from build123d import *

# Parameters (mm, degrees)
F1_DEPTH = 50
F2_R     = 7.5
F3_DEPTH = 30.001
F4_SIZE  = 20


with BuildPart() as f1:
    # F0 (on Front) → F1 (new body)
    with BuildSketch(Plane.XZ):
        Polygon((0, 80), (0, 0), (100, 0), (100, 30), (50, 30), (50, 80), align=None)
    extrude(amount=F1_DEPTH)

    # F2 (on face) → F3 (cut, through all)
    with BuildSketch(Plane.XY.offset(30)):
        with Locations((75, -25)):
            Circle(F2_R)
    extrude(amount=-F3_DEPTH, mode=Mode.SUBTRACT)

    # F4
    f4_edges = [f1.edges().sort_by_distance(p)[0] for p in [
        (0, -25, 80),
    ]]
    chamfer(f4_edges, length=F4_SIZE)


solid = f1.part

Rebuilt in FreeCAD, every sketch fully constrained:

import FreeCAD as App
import Part
import Sketcher
from FreeCAD import Vector
Q = App.Units.Quantity


def edges_at(feature, points):
    """Names of the edges that pass closest to the given points."""
    edges = feature.Shape.Edges
    near = lambda p: min(range(len(edges)), key=lambda i: edges[i].distToShape(Part.Vertex(*p))[0])
    return sorted({f"Edge{near(p) + 1}" for p in points})

doc = App.newDocument("Part")
body = doc.addObject("PartDesign::Body", "Body")

sketch1 = body.newObject("Sketcher::SketchObject", "Sketch")
sketch1.AttachmentSupport = (doc.getObject("XZ_Plane"), [""])
sketch1.MapMode = "FlatFace"
sketch1.addGeometry([
    Part.LineSegment(Vector(0, 80, 0), Vector(0, 0, 0)),
    Part.LineSegment(Vector(0, 0, 0), Vector(100, 0, 0)),
    Part.LineSegment(Vector(100, 0, 0), Vector(100, 30, 0)),
    Part.LineSegment(Vector(100, 30, 0), Vector(50, 30, 0)),
    Part.LineSegment(Vector(50, 30, 0), Vector(50, 80, 0)),
    Part.LineSegment(Vector(50, 80, 0), Vector(0, 80, 0)),
], False)
sketch1.addConstraint([
    Sketcher.Constraint("Coincident", 0, 2, 1, 1),
    Sketcher.Constraint("Coincident", 1, 2, 2, 1),
    Sketcher.Constraint("Coincident", 2, 2, 3, 1),
    Sketcher.Constraint("Coincident", 3, 2, 4, 1),
    Sketcher.Constraint("Coincident", 4, 2, 5, 1),
    Sketcher.Constraint("Coincident", 5, 2, 0, 1),
    Sketcher.Constraint("Vertical", 0),
    Sketcher.Constraint("Horizontal", 1),
    Sketcher.Constraint("Vertical", 2),
    Sketcher.Constraint("Horizontal", 3),
    Sketcher.Constraint("Vertical", 4),
    Sketcher.Constraint("Horizontal", 5),
    Sketcher.Constraint("Coincident", 0, 2, -1, 1),
    Sketcher.Constraint("Equal", 3, 5),
    Sketcher.Constraint("Equal", 5, 4),
    Sketcher.Constraint("DistanceX", 1, 1, 1, 2, Q("100 mm")),
    Sketcher.Constraint("DistanceY", 0, 2, 0, 1, Q("80 mm")),
])
pad1 = body.newObject("PartDesign::Pad", "Pad")
pad1.Profile = sketch1
pad1.Length = 50

sketch2 = body.newObject("Sketcher::SketchObject", "Sketch001")
sketch2.AttachmentSupport = (doc.getObject("XY_Plane"), [""])
sketch2.MapMode = "FlatFace"
sketch2.AttachmentOffset = App.Placement(Vector(0, 0, 30), App.Rotation())
sketch2.addGeometry(Part.Circle(Vector(75, -25, 0), Vector(0, 0, 1), 7.5), False)
sketch2.addConstraint([
    Sketcher.Constraint("Diameter", 0, Q("15 mm")),
    Sketcher.Constraint("DistanceX", -1, 1, 0, 3, Q("75 mm")),
    Sketcher.Constraint("DistanceY", 0, 3, -1, 1, Q("25 mm")),
])
pocket1 = body.newObject("PartDesign::Pocket", "Pocket")
pocket1.Profile = sketch2
pocket1.Type = "ThroughAll"
doc.recompute()

chamfer = body.newObject("PartDesign::Chamfer", "Chamfer")
chamfer.Base = (pocket1, edges_at(pocket1, [(0, -25, 80)]))
chamfer.Size = 20

doc.recompute()
